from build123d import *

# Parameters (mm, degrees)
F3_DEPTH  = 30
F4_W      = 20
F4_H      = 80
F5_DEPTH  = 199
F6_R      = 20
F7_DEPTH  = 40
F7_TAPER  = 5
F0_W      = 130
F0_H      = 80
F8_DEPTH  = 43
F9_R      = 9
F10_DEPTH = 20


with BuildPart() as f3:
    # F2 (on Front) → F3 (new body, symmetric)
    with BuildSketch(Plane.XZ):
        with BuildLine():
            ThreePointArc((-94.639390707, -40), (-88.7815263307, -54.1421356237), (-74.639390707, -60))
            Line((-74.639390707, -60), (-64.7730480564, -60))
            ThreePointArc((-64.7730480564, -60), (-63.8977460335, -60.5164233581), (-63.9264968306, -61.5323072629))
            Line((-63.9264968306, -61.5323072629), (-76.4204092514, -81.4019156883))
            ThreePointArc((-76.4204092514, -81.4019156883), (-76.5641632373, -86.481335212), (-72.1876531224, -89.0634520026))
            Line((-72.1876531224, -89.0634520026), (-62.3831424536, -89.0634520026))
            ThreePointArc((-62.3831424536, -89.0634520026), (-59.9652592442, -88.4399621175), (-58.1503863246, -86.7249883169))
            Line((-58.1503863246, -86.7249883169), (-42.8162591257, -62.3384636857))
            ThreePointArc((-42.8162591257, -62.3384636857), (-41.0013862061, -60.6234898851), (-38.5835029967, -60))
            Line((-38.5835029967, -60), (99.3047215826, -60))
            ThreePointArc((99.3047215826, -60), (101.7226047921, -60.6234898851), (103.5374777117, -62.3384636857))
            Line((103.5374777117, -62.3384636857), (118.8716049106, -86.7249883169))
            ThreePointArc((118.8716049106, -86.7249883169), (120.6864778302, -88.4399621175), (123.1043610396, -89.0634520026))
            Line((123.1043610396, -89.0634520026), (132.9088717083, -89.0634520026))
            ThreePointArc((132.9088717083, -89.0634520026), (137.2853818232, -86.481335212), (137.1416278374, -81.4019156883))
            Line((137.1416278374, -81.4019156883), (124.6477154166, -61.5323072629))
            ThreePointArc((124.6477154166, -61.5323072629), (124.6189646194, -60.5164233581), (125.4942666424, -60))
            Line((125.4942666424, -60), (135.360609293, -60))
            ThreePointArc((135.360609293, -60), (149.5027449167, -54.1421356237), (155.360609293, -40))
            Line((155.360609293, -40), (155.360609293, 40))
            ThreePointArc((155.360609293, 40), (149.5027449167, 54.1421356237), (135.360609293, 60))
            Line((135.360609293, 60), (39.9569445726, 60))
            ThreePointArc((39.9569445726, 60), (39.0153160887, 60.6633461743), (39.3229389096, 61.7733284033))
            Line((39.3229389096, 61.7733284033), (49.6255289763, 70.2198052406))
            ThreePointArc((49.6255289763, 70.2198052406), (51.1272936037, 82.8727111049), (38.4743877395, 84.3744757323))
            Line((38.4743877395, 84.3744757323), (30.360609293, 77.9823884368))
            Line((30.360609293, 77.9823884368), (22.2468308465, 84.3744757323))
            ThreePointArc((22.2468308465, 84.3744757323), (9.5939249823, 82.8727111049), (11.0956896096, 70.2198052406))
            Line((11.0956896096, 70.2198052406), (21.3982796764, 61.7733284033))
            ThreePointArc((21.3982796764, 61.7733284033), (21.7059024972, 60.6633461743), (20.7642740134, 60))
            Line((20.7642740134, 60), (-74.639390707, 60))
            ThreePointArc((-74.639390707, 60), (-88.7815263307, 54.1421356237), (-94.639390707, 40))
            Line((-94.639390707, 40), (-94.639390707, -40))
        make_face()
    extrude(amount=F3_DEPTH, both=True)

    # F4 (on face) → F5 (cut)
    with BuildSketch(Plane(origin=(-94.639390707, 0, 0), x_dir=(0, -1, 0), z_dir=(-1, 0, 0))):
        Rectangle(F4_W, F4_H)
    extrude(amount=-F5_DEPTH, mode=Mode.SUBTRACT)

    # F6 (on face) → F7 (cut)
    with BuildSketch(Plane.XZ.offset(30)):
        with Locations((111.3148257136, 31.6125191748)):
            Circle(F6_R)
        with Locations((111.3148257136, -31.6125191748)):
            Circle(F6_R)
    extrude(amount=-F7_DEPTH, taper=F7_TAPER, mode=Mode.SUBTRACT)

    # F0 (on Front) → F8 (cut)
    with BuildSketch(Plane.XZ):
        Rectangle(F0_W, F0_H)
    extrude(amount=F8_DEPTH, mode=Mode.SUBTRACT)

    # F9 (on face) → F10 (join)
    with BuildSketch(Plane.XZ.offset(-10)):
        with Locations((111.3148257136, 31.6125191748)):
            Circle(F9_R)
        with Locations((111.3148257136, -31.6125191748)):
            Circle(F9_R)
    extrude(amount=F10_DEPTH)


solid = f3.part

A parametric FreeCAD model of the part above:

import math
import FreeCAD as App
import Part
import Sketcher

V = App.Vector
Q = App.Units.Quantity


def add_polygon(sketch, points):
    """Adds a closed chain of lines whose ends are joined by coincident constraints."""
    first, n = sketch.GeometryCount, len(points)
    for a, b in zip(points, points[1:] + points[:1]):
        sketch.addGeometry(Part.LineSegment(App.Vector(*a, 0), App.Vector(*b, 0)), False)
    for i in range(n):
        sketch.addConstraint(Sketcher.Constraint("Coincident", first + i, 2, first + (i + 1) % n, 1))

doc = App.newDocument("Part")
body = doc.addObject("PartDesign::Body", "Body")

sketch1 = body.newObject("Sketcher::SketchObject", "Sketch")
sketch1.AttachmentSupport = (doc.getObject("XZ_Plane"), [""])
sketch1.MapMode = "FlatFace"
sketch1.addGeometry([
    Part.ArcOfCircle(Part.Circle(V(-74.639391, -40, 0), V(0, 0, 1), 20), math.radians(180), math.radians(270)),
    Part.LineSegment(V(-74.639391, -60, 0), V(-64.773048, -60, 0)),
    Part.ArcOfCircle(Part.Circle(V(-64.773048, -61, 0), V(0, 0, 1), 1), math.radians(-32.16148), math.radians(90)),
    Part.LineSegment(V(-63.926497, -61.532307, 0), V(-76.420409, -81.401916, 0)),
    Part.ArcOfCircle(Part.Circle(V(-72.187653, -84.063452, 0), V(0, 0, 1), 5), math.radians(147.83852), math.radians(270)),
    Part.LineSegment(V(-72.187653, -89.063452, 0), V(-62.383142, -89.063452, 0)),
    Part.ArcOfCircle(Part.Circle(V(-62.383142, -84.063452, 0), V(0, 0, 1), 5), math.radians(-90), math.radians(-32.16148)),
    Part.LineSegment(V(-58.150386, -86.724988, 0), V(-42.816259, -62.338464, 0)),
    Part.ArcOfCircle(Part.Circle(V(-38.583503, -65, 0), V(0, 0, 1), 5), math.radians(90), math.radians(147.83852)),
    Part.LineSegment(V(-38.583503, -60, 0), V(99.304722, -60, 0)),
    Part.ArcOfCircle(Part.Circle(V(99.304722, -65, 0), V(0, 0, 1), 5), math.radians(32.16148), math.radians(90)),
    Part.LineSegment(V(103.537478, -62.338464, 0), V(118.871605, -86.724988, 0)),
    Part.ArcOfCircle(Part.Circle(V(123.104361, -84.063452, 0), V(0, 0, 1), 5), math.radians(-147.83852), math.radians(-90)),
    Part.LineSegment(V(123.104361, -89.063452, 0), V(132.908872, -89.063452, 0)),
    Part.ArcOfCircle(Part.Circle(V(132.908872, -84.063452, 0), V(0, 0, 1), 5), math.radians(-90), math.radians(32.16148)),
    Part.LineSegment(V(137.141628, -81.401916, 0), V(124.647715, -61.532307, 0)),
    Part.ArcOfCircle(Part.Circle(V(125.494267, -61, 0), V(0, 0, 1), 1), math.radians(90), math.radians(212.16148)),
    Part.LineSegment(V(125.494267, -60, 0), V(135.360609, -60, 0)),
    Part.ArcOfCircle(Part.Circle(V(135.360609, -40, 0), V(0, 0, 1), 20), math.radians(-90), math.radians(0)),
    Part.LineSegment(V(155.360609, -40, 0), V(155.360609, 40, 0)),
    Part.ArcOfCircle(Part.Circle(V(135.360609, 40, 0), V(0, 0, 1), 20), math.radians(0), math.radians(90)),
    Part.LineSegment(V(135.360609, 60, 0), V(39.956945, 60, 0)),
    Part.ArcOfCircle(Part.Circle(V(39.956945, 61, 0), V(0, 0, 1), 1), math.radians(129.346275), math.radians(270)),
    Part.LineSegment(V(39.322939, 61.773328, 0), V(49.625529, 70.219805, 0)),
    Part.ArcOfCircle(Part.Circle(V(44.049958, 77.29714, 0), V(0, 0, 1), 9.009754), math.radians(-51.768731), math.radians(128.231269)),
    Part.LineSegment(V(38.474388, 84.374476, 0), V(30.360609, 77.982388, 0)),
    Part.LineSegment(V(30.360609, 77.982388, 0), V(22.246831, 84.374476, 0)),
    Part.ArcOfCircle(Part.Circle(V(16.67126, 77.29714, 0), V(0, 0, 1), 9.009754), math.radians(51.768731), math.radians(231.768731)),
    Part.LineSegment(V(11.09569, 70.219805, 0), V(21.39828, 61.773328, 0)),
    Part.ArcOfCircle(Part.Circle(V(20.764274, 61, 0), V(0, 0, 1), 1), math.radians(-90), math.radians(50.653725)),
    Part.LineSegment(V(20.764274, 60, 0), V(-74.639391, 60, 0)),
    Part.ArcOfCircle(Part.Circle(V(-74.639391, 40, 0), V(0, 0, 1), 20), math.radians(90), math.radians(180)),
    Part.LineSegment(V(-94.639391, 40, 0), V(-94.639391, -40, 0)),
], False)
sketch1.addConstraint([
    Sketcher.Constraint("Tangent", 0, 2, 1, 1),
    Sketcher.Constraint("Tangent", 1, 2, 2, 2),
    Sketcher.Constraint("Tangent", 2, 1, 3, 1),
    Sketcher.Constraint("Tangent", 3, 2, 4, 1),
    Sketcher.Constraint("Tangent", 4, 2, 5, 1),
    Sketcher.Constraint("Tangent", 5, 2, 6, 1),
    Sketcher.Constraint("Tangent", 6, 2, 7, 1),
    Sketcher.Constraint("Tangent", 7, 2, 8, 2),
    Sketcher.Constraint("Tangent", 8, 1, 9, 1),
    Sketcher.Constraint("Tangent", 9, 2, 10, 2),
    Sketcher.Constraint("Tangent", 10, 1, 11, 1),
    Sketcher.Constraint("Tangent", 11, 2, 12, 1),
    Sketcher.Constraint("Tangent", 12, 2, 13, 1),
    Sketcher.Constraint("Tangent", 13, 2, 14, 1),
    Sketcher.Constraint("Tangent", 14, 2, 15, 1),
    Sketcher.Constraint("Tangent", 15, 2, 16, 2),
    Sketcher.Constraint("Tangent", 16, 1, 17, 1),
    Sketcher.Constraint("Tangent", 17, 2, 18, 1),
    Sketcher.Constraint("Tangent", 18, 2, 19, 1),
    Sketcher.Constraint("Tangent", 19, 2, 20, 1),
    Sketcher.Constraint("Tangent", 20, 2, 21, 1),
    Sketcher.Constraint("Tangent", 21, 2, 22, 2),
    Sketcher.Constraint("Tangent", 22, 1, 23, 1),
    Sketcher.Constraint("Coincident", 23, 2, 24, 1),
    Sketcher.Constraint("Tangent", 24, 2, 25, 1),
    Sketcher.Constraint("Coincident", 25, 2, 26, 1),
    Sketcher.Constraint("Tangent", 26, 2, 27, 1),
    Sketcher.Constraint("Coincident", 27, 2, 28, 1),
    Sketcher.Constraint("Tangent", 28, 2, 29, 2),
    Sketcher.Constraint("Tangent", 29, 1, 30, 1),
    Sketcher.Constraint("Tangent", 30, 2, 31, 1),
    Sketcher.Constraint("Tangent", 31, 2, 32, 1),
    Sketcher.Constraint("Tangent", 32, 2, 0, 1),
    Sketcher.Constraint("Horizontal", 1),
    Sketcher.Constraint("Horizontal", 5),
    Sketcher.Constraint("Horizontal", 9),
    Sketcher.Constraint("Horizontal", 13),
    Sketcher.Constraint("Horizontal", 17),
    Sketcher.Constraint("Vertical", 19),
    Sketcher.Constraint("Horizontal", 21),
    Sketcher.Constraint("Horizontal", 30),
    Sketcher.Constraint("Vertical", 32),
    Sketcher.Constraint("Equal", 4, 6),
    Sketcher.Constraint("Equal", 6, 8),
    Sketcher.Constraint("Equal", 8, 10),
    Sketcher.Constraint("Equal", 10, 12),
    Sketcher.Constraint("Equal", 12, 14),
    Sketcher.Constraint("Equal", 2, 16),
    Sketcher.Constraint("Equal", 0, 18),
    Sketcher.Constraint("Equal", 18, 20),
    Sketcher.Constraint("Equal", 16, 22),
    Sketcher.Constraint("Equal", 24, 27),
    Sketcher.Constraint("Equal", 22, 29),
    Sketcher.Constraint("Equal", 20, 31),
    Sketcher.Constraint("Parallel", 3, 7),
    Sketcher.Constraint("Parallel", 11, 15),
    Sketcher.Constraint("Horizontal", 6, 3, 12, 3),
    Sketcher.Constraint("Horizontal", 2, 3, 16, 3),
    Sketcher.Constraint("Horizontal", 24, 3, 27, 3),
    Sketcher.Constraint("Horizontal", 22, 3, 29, 3),
    Sketcher.Constraint("Horizontal", 1, 2, 8, 1),
    Sketcher.Constraint("Horizontal", 7, 2, 10, 1),
    Sketcher.Constraint("Horizontal", 24, 2, 26, 2),
    Sketcher.Constraint("Horizontal", 23, 2, 27, 2),
    Sketcher.Constraint("Horizontal", 22, 1, 28, 2),
    Sketcher.Constraint("Equal", 5, 13),
    Sketcher.Constraint("Equal", 1, 17),
    Sketcher.Constraint("Equal", 21, 30),
    Sketcher.Constraint("Radius", 0, Q("20 mm")),
    Sketcher.Constraint("Radius", 2, Q("1 mm")),
    Sketcher.Constraint("Radius", 4, Q("5 mm")),
    Sketcher.Constraint("DistanceY", 19, 1, 19, 2, Q("80 mm")),
    Sketcher.Constraint("DistanceY", 0, 3, -1, 1, Q("40 mm")),
    Sketcher.Constraint("Radius", 24, Q("9.009754 mm")),
    Sketcher.Constraint("Distance", 23, Q("13.3224 mm")),
    Sketcher.Constraint("DistanceX", 5, 1, 5, 2, Q("9.804511 mm")),
    Sketcher.Constraint("DistanceX", 27, 3, 24, 3, Q("27.378698 mm")),
    Sketcher.Constraint("Distance", 3, Q("23.471242 mm")),
    Sketcher.Constraint("Distance", 7, Q("28.80691 mm")),
    Sketcher.Constraint("Distance", 25, Q("10.329191 mm")),
    Sketcher.Constraint("DistanceX", 1, 1, 1, 2, Q("9.866343 mm")),
    Sketcher.Constraint("DistanceX", 9, 1, 9, 2, Q("137.888225 mm")),
    Sketcher.Constraint("DistanceX", 21, 2, 21, 1, Q("95.403665 mm")),
    Sketcher.Constraint("DistanceX", 0, 3, -1, 1, Q("74.639391 mm")),
    Sketcher.Constraint("DistanceY", -1, 1, 24, 3, Q("77.29714 mm")),
])
pad1 = body.newObject("PartDesign::Pad", "Pad")
pad1.Profile = sketch1
pad1.Length = 60
pad1.Midplane = True

sketch2 = body.newObject("Sketcher::SketchObject", "Sketch001")
sketch2.AttachmentSupport = (doc.getObject("YZ_Plane"), [""])
sketch2.MapMode = "FlatFace"
sketch2.AttachmentOffset = App.Placement(V(0, 0, -94.639391), App.Rotation())
add_polygon(sketch2, [(10, 40), (10, -40), (-10, -40), (-10, 40)])
sketch2.addConstraint([
    Sketcher.Constraint("Vertical", 0),
    Sketcher.Constraint("Horizontal", 1),
    Sketcher.Constraint("Vertical", 2),
    Sketcher.Constraint("Horizontal", 3),
    Sketcher.Constraint("Symmetric", 0, 2, 2, 2, -1, 1),
    Sketcher.Constraint("DistanceX", 1, 2, 1, 1, Q("20 mm")),
    Sketcher.Constraint("DistanceY", 0, 2, 0, 1, Q("80 mm")),
])
pocket1 = body.newObject("PartDesign::Pocket", "Pocket")
pocket1.Profile = sketch2
pocket1.Length = 199
pocket1.Reversed = True

sketch3 = body.newObject("Sketcher::SketchObject", "Sketch002")
sketch3.AttachmentSupport = (doc.getObject("XZ_Plane"), [""])
sketch3.MapMode = "FlatFace"
sketch3.AttachmentOffset = App.Placement(V(0, 0, 30), App.Rotation())
sketch3.addGeometry([
    Part.Circle(V(111.314826, 31.612519, 0), V(0, 0, 1), 20),
    Part.Circle(V(111.314826, -31.612519, 0), V(0, 0, 1), 20),
], False)
sketch3.addConstraint([
    Sketcher.Constraint("Equal", 0, 1),
    Sketcher.Constraint("Symmetric", 0, 3, 1, 3, -1),
    Sketcher.Constraint("Diameter", 0, Q("40 mm")),
    Sketcher.Constraint("DistanceY", -1, 1, 0, 3, Q("31.612519 mm")),
    Sketcher.Constraint("DistanceX", -1, 1, 0, 3, Q("111.314826 mm")),
])
pocket2 = body.newObject("PartDesign::Pocket", "Pocket001")
pocket2.Profile = sketch3
pocket2.Length = 40
pocket2.TaperAngle = -5

sketch4 = body.newObject("Sketcher::SketchObject", "Sketch003")
sketch4.AttachmentSupport = (doc.getObject("XZ_Plane"), [""])
sketch4.MapMode = "FlatFace"
add_polygon(sketch4, [(-65, 40), (-65, -40), (65, -40), (65, 40)])
sketch4.addConstraint([
    Sketcher.Constraint("Vertical", 0),
    Sketcher.Constraint("Horizontal", 1),
    Sketcher.Constraint("Vertical", 2),
    Sketcher.Constraint("Horizontal", 3),
    Sketcher.Constraint("Symmetric", 0, 2, 2, 2, -1, 1),
    Sketcher.Constraint("DistanceX", 1, 1, 1, 2, Q("130 mm")),
    Sketcher.Constraint("DistanceY", 0, 2, 0, 1, Q("80 mm")),
])
pocket3 = body.newObject("PartDesign::Pocket", "Pocket002")
pocket3.Profile = sketch4
pocket3.Length = 43
pocket3.Reversed = True

sketch5 = body.newObject("Sketcher::SketchObject", "Sketch004")
sketch5.AttachmentSupport = (doc.getObject("XZ_Plane"), [""])
sketch5.MapMode = "FlatFace"
sketch5.AttachmentOffset = App.Placement(V(0, 0, -10), App.Rotation())
sketch5.addGeometry([
    Part.Circle(V(111.314826, 31.612519, 0), V(0, 0, 1), 9),
    Part.Circle(V(111.314826, -31.612519, 0), V(0, 0, 1), 9),
], False)
sketch5.addConstraint([
    Sketcher.Constraint("Equal", 0, 1),
    Sketcher.Constraint("Symmetric", 0, 3, 1, 3, -1),
    Sketcher.Constraint("Diameter", 0, Q("18 mm")),
    Sketcher.Constraint("DistanceY", -1, 1, 0, 3, Q("31.612519 mm")),
    Sketcher.Constraint("DistanceX", -1, 1, 0, 3, Q("111.314826 mm")),
])
pad2 = body.newObject("PartDesign::Pad", "Pad001")
pad2.Profile = sketch5
pad2.Length = 20

doc.recompute()
